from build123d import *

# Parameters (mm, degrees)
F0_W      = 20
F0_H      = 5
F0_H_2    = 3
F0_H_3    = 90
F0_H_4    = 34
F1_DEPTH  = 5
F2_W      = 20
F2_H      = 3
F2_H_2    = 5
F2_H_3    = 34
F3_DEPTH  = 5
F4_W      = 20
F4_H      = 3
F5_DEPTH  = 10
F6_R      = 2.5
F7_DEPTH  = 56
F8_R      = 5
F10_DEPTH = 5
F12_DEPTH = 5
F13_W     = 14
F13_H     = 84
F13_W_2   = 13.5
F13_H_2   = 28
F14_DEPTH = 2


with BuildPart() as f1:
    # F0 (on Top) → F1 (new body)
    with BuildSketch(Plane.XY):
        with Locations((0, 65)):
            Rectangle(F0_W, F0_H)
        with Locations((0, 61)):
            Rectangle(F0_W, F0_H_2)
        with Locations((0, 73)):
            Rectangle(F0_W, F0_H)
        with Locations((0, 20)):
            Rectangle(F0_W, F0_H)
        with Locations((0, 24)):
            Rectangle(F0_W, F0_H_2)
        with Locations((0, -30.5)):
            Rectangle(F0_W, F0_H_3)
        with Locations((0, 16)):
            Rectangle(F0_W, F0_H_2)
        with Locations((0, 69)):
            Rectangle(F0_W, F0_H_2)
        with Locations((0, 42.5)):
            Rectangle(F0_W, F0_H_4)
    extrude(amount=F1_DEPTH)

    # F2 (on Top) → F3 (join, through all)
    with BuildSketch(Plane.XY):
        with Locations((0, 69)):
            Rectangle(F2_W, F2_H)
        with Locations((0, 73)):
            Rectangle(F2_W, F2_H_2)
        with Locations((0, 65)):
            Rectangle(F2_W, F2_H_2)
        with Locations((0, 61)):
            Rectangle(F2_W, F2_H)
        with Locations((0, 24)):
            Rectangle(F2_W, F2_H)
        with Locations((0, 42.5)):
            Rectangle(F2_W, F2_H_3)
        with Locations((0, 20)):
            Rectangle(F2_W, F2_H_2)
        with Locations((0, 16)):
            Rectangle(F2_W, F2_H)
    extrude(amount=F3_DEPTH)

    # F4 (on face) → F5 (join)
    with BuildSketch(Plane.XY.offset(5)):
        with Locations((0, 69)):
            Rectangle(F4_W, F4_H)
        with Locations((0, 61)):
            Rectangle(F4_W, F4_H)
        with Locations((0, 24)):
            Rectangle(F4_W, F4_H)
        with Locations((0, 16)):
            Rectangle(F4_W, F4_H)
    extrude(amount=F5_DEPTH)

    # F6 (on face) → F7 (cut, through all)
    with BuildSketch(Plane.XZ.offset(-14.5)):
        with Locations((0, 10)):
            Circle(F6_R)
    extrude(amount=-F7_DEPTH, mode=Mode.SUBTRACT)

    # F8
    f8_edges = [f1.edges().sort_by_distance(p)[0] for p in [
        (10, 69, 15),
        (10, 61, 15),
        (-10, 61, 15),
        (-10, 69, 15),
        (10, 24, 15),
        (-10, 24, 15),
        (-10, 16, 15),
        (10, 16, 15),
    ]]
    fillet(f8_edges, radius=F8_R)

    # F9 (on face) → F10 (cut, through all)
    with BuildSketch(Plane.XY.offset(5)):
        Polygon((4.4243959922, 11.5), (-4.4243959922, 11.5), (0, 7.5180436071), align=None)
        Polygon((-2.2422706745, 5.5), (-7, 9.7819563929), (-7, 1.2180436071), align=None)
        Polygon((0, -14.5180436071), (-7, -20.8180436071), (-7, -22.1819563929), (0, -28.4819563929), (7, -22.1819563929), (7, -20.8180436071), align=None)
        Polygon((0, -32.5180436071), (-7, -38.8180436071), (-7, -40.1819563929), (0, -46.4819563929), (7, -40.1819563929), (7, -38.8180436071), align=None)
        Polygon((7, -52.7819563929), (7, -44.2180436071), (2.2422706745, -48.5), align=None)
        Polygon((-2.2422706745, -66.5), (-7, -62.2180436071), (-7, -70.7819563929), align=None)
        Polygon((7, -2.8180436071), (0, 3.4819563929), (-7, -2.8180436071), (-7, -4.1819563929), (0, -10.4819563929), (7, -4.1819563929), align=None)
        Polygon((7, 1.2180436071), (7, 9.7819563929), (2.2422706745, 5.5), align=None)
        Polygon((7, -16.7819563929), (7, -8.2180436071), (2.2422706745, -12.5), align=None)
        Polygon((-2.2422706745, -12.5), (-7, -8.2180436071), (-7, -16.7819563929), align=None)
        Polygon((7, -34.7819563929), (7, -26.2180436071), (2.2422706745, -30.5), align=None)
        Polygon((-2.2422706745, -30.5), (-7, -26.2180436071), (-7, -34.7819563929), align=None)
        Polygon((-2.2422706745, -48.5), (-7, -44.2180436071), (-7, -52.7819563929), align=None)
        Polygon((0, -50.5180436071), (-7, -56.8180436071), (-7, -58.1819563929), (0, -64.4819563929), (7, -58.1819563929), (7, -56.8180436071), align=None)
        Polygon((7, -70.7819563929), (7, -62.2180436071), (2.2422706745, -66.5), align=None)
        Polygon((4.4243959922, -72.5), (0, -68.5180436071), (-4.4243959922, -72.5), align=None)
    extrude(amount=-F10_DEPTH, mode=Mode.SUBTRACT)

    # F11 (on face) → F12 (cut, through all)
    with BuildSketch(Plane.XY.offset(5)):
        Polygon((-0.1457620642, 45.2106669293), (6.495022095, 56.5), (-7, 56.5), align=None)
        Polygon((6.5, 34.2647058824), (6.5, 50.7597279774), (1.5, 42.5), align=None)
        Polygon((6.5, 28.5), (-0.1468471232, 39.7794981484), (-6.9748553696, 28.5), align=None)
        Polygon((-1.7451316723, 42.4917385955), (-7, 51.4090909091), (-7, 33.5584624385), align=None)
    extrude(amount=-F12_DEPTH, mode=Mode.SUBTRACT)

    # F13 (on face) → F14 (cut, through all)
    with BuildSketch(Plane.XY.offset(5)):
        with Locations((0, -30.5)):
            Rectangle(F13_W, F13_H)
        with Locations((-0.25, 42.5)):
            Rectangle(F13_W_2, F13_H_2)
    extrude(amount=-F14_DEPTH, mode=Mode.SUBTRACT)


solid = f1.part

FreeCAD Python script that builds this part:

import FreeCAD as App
import Part
import Sketcher


def edges_at(feature, points):
    """Names of the edges that pass closest to the given points."""
    edges = feature.Shape.Edges
    near = lambda p: min(range(len(edges)), key=lambda i: edges[i].distToShape(Part.Vertex(*p))[0])
    return sorted({f"Edge{near(p) + 1}" for p in points})

doc = App.newDocument("Part")
body = doc.addObject("PartDesign::Body", "Body")

sketch1 = doc.addObject("Sketcher::SketchObject", "Sketch")
body.addObject(sketch1)
sketch1.AttachmentSupport = (doc.XY_Plane, [""])
sketch1.MapMode = "FlatFace"
sketch1.addGeometry(Part.LineSegment(App.Vector(10, 75.5, 0), App.Vector(-10, 75.5, 0)), False)
sketch1.addGeometry(Part.LineSegment(App.Vector(-10, 75.5, 0), App.Vector(-10, -75.5, 0)), False)
sketch1.addGeometry(Part.LineSegment(App.Vector(-10, -75.5, 0), App.Vector(10, -75.5, 0)), False)
sketch1.addGeometry(Part.LineSegment(App.Vector(10, -75.5, 0), App.Vector(10, 75.5, 0)), False)
sketch1.addConstraint(Sketcher.Constraint("Coincident", 0, 2, 1, 1))
sketch1.addConstraint(Sketcher.Constraint("Coincident", 1, 2, 2, 1))
sketch1.addConstraint(Sketcher.Constraint("Coincident", 2, 2, 3, 1))
sketch1.addConstraint(Sketcher.Constraint("Coincident", 3, 2, 0, 1))
sketch1.addConstraint(Sketcher.Constraint("Horizontal", 0))
sketch1.addConstraint(Sketcher.Constraint("Vertical", 1))
sketch1.addConstraint(Sketcher.Constraint("Horizontal", 2))
sketch1.addConstraint(Sketcher.Constraint("Vertical", 3))
sketch1.addConstraint(Sketcher.Constraint("Symmetric", 0, 2, 2, 2, -1, 1))
sketch1.addConstraint(Sketcher.Constraint("DistanceX", 0, 2, 0, 1, 20.0))
sketch1.addConstraint(Sketcher.Constraint("DistanceY", 1, 2, 1, 1, 151.0))
pad1 = doc.addObject("PartDesign::Pad", "Pad")
body.addObject(pad1)
pad1.Profile = sketch1
pad1.Length = 5

sketch2 = doc.addObject("Sketcher::SketchObject", "Sketch001")
body.addObject(sketch2)
sketch2.AttachmentSupport = (doc.XY_Plane, [""])
sketch2.MapMode = "FlatFace"
sketch2.addGeometry(Part.LineSegment(App.Vector(10, 75.5, 0), App.Vector(-10, 75.5, 0)), False)
sketch2.addGeometry(Part.LineSegment(App.Vector(-10, 75.5, 0), App.Vector(-10, 14.5, 0)), False)
sketch2.addGeometry(Part.LineSegment(App.Vector(-10, 14.5, 0), App.Vector(10, 14.5, 0)), False)
sketch2.addGeometry(Part.LineSegment(App.Vector(10, 14.5, 0), App.Vector(10, 75.5, 0)), False)
sketch2.addConstraint(Sketcher.Constraint("Coincident", 0, 2, 1, 1))
sketch2.addConstraint(Sketcher.Constraint("Coincident", 1, 2, 2, 1))
sketch2.addConstraint(Sketcher.Constraint("Coincident", 2, 2, 3, 1))
sketch2.addConstraint(Sketcher.Constraint("Coincident", 3, 2, 0, 1))
sketch2.addConstraint(Sketcher.Constraint("Horizontal", 0))
sketch2.addConstraint(Sketcher.Constraint("Vertical", 1))
sketch2.addConstraint(Sketcher.Constraint("Horizontal", 2))
sketch2.addConstraint(Sketcher.Constraint("Vertical", 3))
sketch2.addConstraint(Sketcher.Constraint("DistanceX", 0, 2, 0, 1, 20.0))
sketch2.addConstraint(Sketcher.Constraint("DistanceY", 1, 2, 1, 1, 61.0))
sketch2.addConstraint(Sketcher.Constraint("DistanceX", 0, 2, -1, 1, 10.0))
sketch2.addConstraint(Sketcher.Constraint("DistanceY", -1, 1, 0, 2, 75.5))
pad2 = doc.addObject("PartDesign::Pad", "Pad001")
body.addObject(pad2)
pad2.Profile = sketch2
pad2.Type = "UpToLast"

sketch3 = doc.addObject("Sketcher::SketchObject", "Sketch002")
body.addObject(sketch3)
sketch3.AttachmentSupport = (doc.XY_Plane, [""])
sketch3.MapMode = "FlatFace"
sketch3.AttachmentOffset = App.Placement(App.Vector(0, 0, 5), App.Rotation())
sketch3.addGeometry(Part.LineSegment(App.Vector(-10, 70.5, 0), App.Vector(-10, 67.5, 0)), False)
sketch3.addGeometry(Part.LineSegment(App.Vector(-10, 67.5, 0), App.Vector(10, 67.5, 0)), False)
sketch3.addGeometry(Part.LineSegment(App.Vector(10, 67.5, 0), App.Vector(10, 70.5, 0)), False)
sketch3.addGeometry(Part.LineSegment(App.Vector(10, 70.5, 0), App.Vector(-10, 70.5, 0)), False)
sketch3.addGeometry(Part.LineSegment(App.Vector(-10, 62.5, 0), App.Vector(-10, 59.5, 0)), False)
sketch3.addGeometry(Part.LineSegment(App.Vector(-10, 59.5, 0), App.Vector(10, 59.5, 0)), False)
sketch3.addGeometry(Part.LineSegment(App.Vector(10, 59.5, 0), App.Vector(10, 62.5, 0)), False)
sketch3.addGeometry(Part.LineSegment(App.Vector(10, 62.5, 0), App.Vector(-10, 62.5, 0)), False)
sketch3.addGeometry(Part.LineSegment(App.Vector(-10, 25.5, 0), App.Vector(-10, 22.5, 0)), False)
sketch3.addGeometry(Part.LineSegment(App.Vector(-10, 22.5, 0), App.Vector(10, 22.5, 0)), False)
sketch3.addGeometry(Part.LineSegment(App.Vector(10, 22.5, 0), App.Vector(10, 25.5, 0)), False)
sketch3.addGeometry(Part.LineSegment(App.Vector(10, 25.5, 0), App.Vector(-10, 25.5, 0)), False)
sketch3.addGeometry(Part.LineSegment(App.Vector(-10, 17.5, 0), App.Vector(-10, 14.5, 0)), False)
sketch3.addGeometry(Part.LineSegment(App.Vector(-10, 14.5, 0), App.Vector(10, 14.5, 0)), False)
sketch3.addGeometry(Part.LineSegment(App.Vector(10, 14.5, 0), App.Vector(10, 17.5, 0)), False)
sketch3.addGeometry(Part.LineSegment(App.Vector(10, 17.5, 0), App.Vector(-10, 17.5, 0)), False)
sketch3.addConstraint(Sketcher.Constraint("Coincident", 0, 2, 1, 1))
sketch3.addConstraint(Sketcher.Constraint("Coincident", 1, 2, 2, 1))
sketch3.addConstraint(Sketcher.Constraint("Coincident", 2, 2, 3, 1))
sketch3.addConstraint(Sketcher.Constraint("Coincident", 3, 2, 0, 1))
sketch3.addConstraint(Sketcher.Constraint("Coincident", 4, 2, 5, 1))
sketch3.addConstraint(Sketcher.Constraint("Coincident", 5, 2, 6, 1))
sketch3.addConstraint(Sketcher.Constraint("Coincident", 6, 2, 7, 1))
sketch3.addConstraint(Sketcher.Constraint("Coincident", 7, 2, 4, 1))
sketch3.addConstraint(Sketcher.Constraint("Coincident", 8, 2, 9, 1))
sketch3.addConstraint(Sketcher.Constraint("Coincident", 9, 2, 10, 1))
sketch3.addConstraint(Sketcher.Constraint("Coincident", 10, 2, 11, 1))
sketch3.addConstraint(Sketcher.Constraint("Coincident", 11, 2, 8, 1))
sketch3.addConstraint(Sketcher.Constraint("Coincident", 12, 2, 13, 1))
sketch3.addConstraint(Sketcher.Constraint("Coincident", 13, 2, 14, 1))
sketch3.addConstraint(Sketcher.Constraint("Coincident", 14, 2, 15, 1))
sketch3.addConstraint(Sketcher.Constraint("Coincident", 15, 2, 12, 1))
sketch3.addConstraint(Sketcher.Constraint("Vertical", 0))
sketch3.addConstraint(Sketcher.Constraint("Horizontal", 1))
sketch3.addConstraint(Sketcher.Constraint("Vertical", 2))
sketch3.addConstraint(Sketcher.Constraint("Horizontal", 3))
sketch3.addConstraint(Sketcher.Constraint("Vertical", 4))
sketch3.addConstraint(Sketcher.Constraint("Horizontal", 5))
sketch3.addConstraint(Sketcher.Constraint("Vertical", 6))
sketch3.addConstraint(Sketcher.Constraint("Horizontal", 7))
sketch3.addConstraint(Sketcher.Constraint("Vertical", 8))
sketch3.addConstraint(Sketcher.Constraint("Horizontal", 9))
sketch3.addConstraint(Sketcher.Constraint("Vertical", 10))
sketch3.addConstraint(Sketcher.Constraint("Horizontal", 11))
sketch3.addConstraint(Sketcher.Constraint("Vertical", 12))
sketch3.addConstraint(Sketcher.Constraint("Horizontal", 13))
sketch3.addConstraint(Sketcher.Constraint("Vertical", 14))
sketch3.addConstraint(Sketcher.Constraint("Horizontal", 15))
sketch3.addConstraint(Sketcher.Constraint("Vertical", 3, 2, 4, 2))
sketch3.addConstraint(Sketcher.Constraint("Vertical", 2, 2, 5, 2))
sketch3.addConstraint(Sketcher.Constraint("Vertical", 7, 2, 8, 2))
sketch3.addConstraint(Sketcher.Constraint("Vertical", 6, 2, 9, 2))
sketch3.addConstraint(Sketcher.Constraint("Vertical", 11, 2, 12, 2))
sketch3.addConstraint(Sketcher.Constraint("Vertical", 10, 2, 13, 2))
sketch3.addConstraint(Sketcher.Constraint("Equal", 2, 4))
sketch3.addConstraint(Sketcher.Constraint("Equal", 6, 8))
sketch3.addConstraint(Sketcher.Constraint("Equal", 10, 12))
sketch3.addConstraint(Sketcher.Constraint("DistanceX", 1, 1, 1, 2, 20.0))
sketch3.addConstraint(Sketcher.Constraint("DistanceY", 0, 2, 0, 1, 3.0))
sketch3.addConstraint(Sketcher.Constraint("DistanceX", 0, 2, -1, 1, 10.0))
sketch3.addConstraint(Sketcher.Constraint("DistanceY", 4, 2, 0, 2, 8.0))
sketch3.addConstraint(Sketcher.Constraint("DistanceY", 8, 2, 4, 2, 37.0))
sketch3.addConstraint(Sketcher.Constraint("DistanceY", 12, 2, 8, 2, 8.0))
sketch3.addConstraint(Sketcher.Constraint("DistanceY", -1, 1, 0, 2, 67.5))
pad3 = doc.addObject("PartDesign::Pad", "Pad002")
body.addObject(pad3)
pad3.Profile = sketch3
pad3.Length = 10

sketch4 = doc.addObject("Sketcher::SketchObject", "Sketch003")
body.addObject(sketch4)
sketch4.AttachmentSupport = (doc.XZ_Plane, [""])
sketch4.MapMode = "FlatFace"
sketch4.AttachmentOffset = App.Placement(App.Vector(0, 0, -14.5), App.Rotation())
sketch4.addGeometry(Part.Circle(App.Vector(0, 10, 0), App.Vector(0, 0, 1), 2.5), False)
sketch4.addConstraint(Sketcher.Constraint("PointOnObject", 0, 3, -2))
sketch4.addConstraint(Sketcher.Constraint("Diameter", 0, 5.0))
sketch4.addConstraint(Sketcher.Constraint("DistanceY", -1, 1, 0, 3, 10.0))
pocket1 = doc.addObject("PartDesign::Pocket", "Pocket")
body.addObject(pocket1)
pocket1.Profile = sketch4
pocket1.Type = "ThroughAll"
doc.recompute()

fillet = doc.addObject("PartDesign::Fillet", "Fillet")
body.addObject(fillet)
fillet.Base = (pocket1, edges_at(pocket1, [
    (10, 69, 15),
    (10, 61, 15),
    (-10, 61, 15),
    (-10, 69, 15),
    (10, 24, 15),
    (-10, 24, 15),
    (-10, 16, 15),
    (10, 16, 15),
]))
fillet.Radius = 5

sketch5 = doc.addObject("Sketcher::SketchObject", "Sketch004")
body.addObject(sketch5)
sketch5.AttachmentSupport = (doc.XY_Plane, [""])
sketch5.MapMode = "FlatFace"
sketch5.AttachmentOffset = App.Placement(App.Vector(0, 0, 5), App.Rotation())
sketch5.addGeometry(Part.LineSegment(App.Vector(4.424396, 11.5, 0), App.Vector(-4.424396, 11.5, 0)), False)
sketch5.addGeometry(Part.LineSegment(App.Vector(-4.424396, 11.5, 0), App.Vector(0, 7.518044, 0)), False)
sketch5.addGeometry(Part.LineSegment(App.Vector(0, 7.518044, 0), App.Vector(4.424396, 11.5, 0)), False)
sketch5.addGeometry(Part.LineSegment(App.Vector(-2.242271, 5.5, 0), App.Vector(-7, 9.781956, 0)), False)
sketch5.addGeometry(Part.LineSegment(App.Vector(-7, 9.781956, 0), App.Vector(-7, 1.218044, 0)), False)
sketch5.addGeometry(Part.LineSegment(App.Vector(-7, 1.218044, 0), App.Vector(-2.242271, 5.5, 0)), False)
sketch5.addGeometry(Part.LineSegment(App.Vector(0, -14.518044, 0), App.Vector(-7, -20.818044, 0)), False)
sketch5.addGeometry(Part.LineSegment(App.Vector(-7, -20.818044, 0), App.Vector(-7, -22.181956, 0)), False)
sketch5.addGeometry(Part.LineSegment(App.Vector(-7, -22.181956, 0), App.Vector(0, -28.481956, 0)), False)
sketch5.addGeometry(Part.LineSegment(App.Vector(0, -28.481956, 0), App.Vector(7, -22.181956, 0)), False)
sketch5.addGeometry(Part.LineSegment(App.Vector(7, -22.181956, 0), App.Vector(7, -20.818044, 0)), False)
sketch5.addGeometry(Part.LineSegment(App.Vector(7, -20.818044, 0), App.Vector(0, -14.518044, 0)), False)
sketch5.addGeometry(Part.LineSegment(App.Vector(0, -32.518044, 0), App.Vector(-7, -38.818044, 0)), False)
sketch5.addGeometry(Part.LineSegment(App.Vector(-7, -38.818044, 0), App.Vector(-7, -40.181956, 0)), False)
sketch5.addGeometry(Part.LineSegment(App.Vector(-7, -40.181956, 0), App.Vector(0, -46.481956, 0)), False)
sketch5.addGeometry(Part.LineSegment(App.Vector(0, -46.481956, 0), App.Vector(7, -40.181956, 0)), False)
sketch5.addGeometry(Part.LineSegment(App.Vector(7, -40.181956, 0), App.Vector(7, -38.818044, 0)), False)
sketch5.addGeometry(Part.LineSegment(App.Vector(7, -38.818044, 0), App.Vector(0, -32.518044, 0)), False)
sketch5.addGeometry(Part.LineSegment(App.Vector(7, -52.781956, 0), App.Vector(7, -44.218044, 0)), False)
sketch5.addGeometry(Part.LineSegment(App.Vector(7, -44.218044, 0), App.Vector(2.242271, -48.5, 0)), False)
sketch5.addGeometry(Part.LineSegment(App.Vector(2.242271, -48.5, 0), App.Vector(7, -52.781956, 0)), False)
sketch5.addGeometry(Part.LineSegment(App.Vector(-2.242271, -66.5, 0), App.Vector(-7, -62.218044, 0)), False)
sketch5.addGeometry(Part.LineSegment(App.Vector(-7, -62.218044, 0), App.Vector(-7, -70.781956, 0)), False)
sketch5.addGeometry(Part.LineSegment(App.Vector(-7, -70.781956, 0), App.Vector(-2.242271, -66.5, 0)), False)
sketch5.addGeometry(Part.LineSegment(App.Vector(7, -2.818044, 0), App.Vector(0, 3.481956, 0)), False)
sketch5.addGeometry(Part.LineSegment(App.Vector(0, 3.481956, 0), App.Vector(-7, -2.818044, 0)), False)
sketch5.addGeometry(Part.LineSegment(App.Vector(-7, -2.818044, 0), App.Vector(-7, -4.181956, 0)), False)
sketch5.addGeometry(Part.LineSegment(App.Vector(-7, -4.181956, 0), App.Vector(0, -10.481956, 0)), False)
sketch5.addGeometry(Part.LineSegment(App.Vector(0, -10.481956, 0), App.Vector(7, -4.181956, 0)), False)
sketch5.addGeometry(Part.LineSegment(App.Vector(7, -4.181956, 0), App.Vector(7, -2.818044, 0)), False)
sketch5.addGeometry(Part.LineSegment(App.Vector(7, 1.218044, 0), App.Vector(7, 9.781956, 0)), False)
sketch5.addGeometry(Part.LineSegment(App.Vector(7, 9.781956, 0), App.Vector(2.242271, 5.5, 0)), False)
sketch5.addGeometry(Part.LineSegment(App.Vector(2.242271, 5.5, 0), App.Vector(7, 1.218044, 0)), False)
sketch5.addGeometry(Part.LineSegment(App.Vector(7, -16.781956, 0), App.Vector(7, -8.218044, 0)), False)
sketch5.addGeometry(Part.LineSegment(App.Vector(7, -8.218044, 0), App.Vector(2.242271, -12.5, 0)), False)
sketch5.addGeometry(Part.LineSegment(App.Vector(2.242271, -12.5, 0), App.Vector(7, -16.781956, 0)), False)
sketch5.addGeometry(Part.LineSegment(App.Vector(-2.242271, -12.5, 0), App.Vector(-7, -8.218044, 0)), False)
sketch5.addGeometry(Part.LineSegment(App.Vector(-7, -8.218044, 0), App.Vector(-7, -16.781956, 0)), False)
sketch5.addGeometry(Part.LineSegment(App.Vector(-7, -16.781956, 0), App.Vector(-2.242271, -12.5, 0)), False)
sketch5.addGeometry(Part.LineSegment(App.Vector(7, -34.781956, 0), App.Vector(7, -26.218044, 0)), False)
sketch5.addGeometry(Part.LineSegment(App.Vector(7, -26.218044, 0), App.Vector(2.242271, -30.5, 0)), False)
sketch5.addGeometry(Part.LineSegment(App.Vector(2.242271, -30.5, 0), App.Vector(7, -34.781956, 0)), False)
sketch5.addGeometry(Part.LineSegment(App.Vector(-2.242271, -30.5, 0), App.Vector(-7, -26.218044, 0)), False)
sketch5.addGeometry(Part.LineSegment(App.Vector(-7, -26.218044, 0), App.Vector(-7, -34.781956, 0)), False)
sketch5.addGeometry(Part.LineSegment(App.Vector(-7, -34.781956, 0), App.Vector(-2.242271, -30.5, 0)), False)
sketch5.addGeometry(Part.LineSegment(App.Vector(-2.242271, -48.5, 0), App.Vector(-7, -44.218044, 0)), False)
sketch5.addGeometry(Part.LineSegment(App.Vector(-7, -44.218044, 0), App.Vector(-7, -52.781956, 0)), False)
sketch5.addGeometry(Part.LineSegment(App.Vector(-7, -52.781956, 0), App.Vector(-2.242271, -48.5, 0)), False)
sketch5.addGeometry(Part.LineSegment(App.Vector(0, -50.518044, 0), App.Vector(-7, -56.818044, 0)), False)
sketch5.addGeometry(Part.LineSegment(App.Vector(-7, -56.818044, 0), App.Vector(-7, -58.181956, 0)), False)
sketch5.addGeometry(Part.LineSegment(App.Vector(-7, -58.181956, 0), App.Vector(0, -64.481956, 0)), False)
sketch5.addGeometry(Part.LineSegment(App.Vector(0, -64.481956, 0), App.Vector(7, -58.181956, 0)), False)
sketch5.addGeometry(Part.LineSegment(App.Vector(7, -58.181956, 0), App.Vector(7, -56.818044, 0)), False)
sketch5.addGeometry(Part.LineSegment(App.Vector(7, -56.818044, 0), App.Vector(0, -50.518044, 0)), False)
sketch5.addGeometry(Part.LineSegment(App.Vector(7, -70.781956, 0), App.Vector(7, -62.218044, 0)), False)
sketch5.addGeometry(Part.LineSegment(App.Vector(7, -62.218044, 0), App.Vector(2.242271, -66.5, 0)), False)
sketch5.addGeometry(Part.LineSegment(App.Vector(2.242271, -66.5, 0), App.Vector(7, -70.781956, 0)), False)
sketch5.addGeometry(Part.LineSegment(App.Vector(4.424396, -72.5, 0), App.Vector(0, -68.518044, 0)), False)
sketch5.addGeometry(Part.LineSegment(App.Vector(0, -68.518044, 0), App.Vector(-4.424396, -72.5, 0)), False)
sketch5.addGeometry(Part.LineSegment(App.Vector(-4.424396, -72.5, 0), App.Vector(4.424396, -72.5, 0)), False)
sketch5.addConstraint(Sketcher.Constraint("Coincident", 0, 2, 1, 1))
sketch5.addConstraint(Sketcher.Constraint("Coincident", 1, 2, 2, 1))
sketch5.addConstraint(Sketcher.Constraint("Coincident", 2, 2, 0, 1))
sketch5.addConstraint(Sketcher.Constraint("Coincident", 3, 2, 4, 1))
sketch5.addConstraint(Sketcher.Constraint("Coincident", 4, 2, 5, 1))
sketch5.addConstraint(Sketcher.Constraint("Coincident", 5, 2, 3, 1))
sketch5.addConstraint(Sketcher.Constraint("Coincident", 6, 2, 7, 1))
sketch5.addConstraint(Sketcher.Constraint("Coincident", 7, 2, 8, 1))
sketch5.addConstraint(Sketcher.Constraint("Coincident", 8, 2, 9, 1))
sketch5.addConstraint(Sketcher.Constraint("Coincident", 9, 2, 10, 1))
sketch5.addConstraint(Sketcher.Constraint("Coincident", 10, 2, 11, 1))
sketch5.addConstraint(Sketcher.Constraint("Coincident", 11, 2, 6, 1))
sketch5.addConstraint(Sketcher.Constraint("Coincident", 12, 2, 13, 1))
sketch5.addConstraint(Sketcher.Constraint("Coincident", 13, 2, 14, 1))
sketch5.addConstraint(Sketcher.Constraint("Coincident", 14, 2, 15, 1))
sketch5.addConstraint(Sketcher.Constraint("Coincident", 15, 2, 16, 1))
sketch5.addConstraint(Sketcher.Constraint("Coincident", 16, 2, 17, 1))
sketch5.addConstraint(Sketcher.Constraint("Coincident", 17, 2, 12, 1))
sketch5.addConstraint(Sketcher.Constraint("Coincident", 18, 2, 19, 1))
sketch5.addConstraint(Sketcher.Constraint("Coincident", 19, 2, 20, 1))
sketch5.addConstraint(Sketcher.Constraint("Coincident", 20, 2, 18, 1))
sketch5.addConstraint(Sketcher.Constraint("Coincident", 21, 2, 22, 1))
sketch5.addConstraint(Sketcher.Constraint("Coincident", 22, 2, 23, 1))
sketch5.addConstraint(Sketcher.Constraint("Coincident", 23, 2, 21, 1))
sketch5.addConstraint(Sketcher.Constraint("Coincident", 24, 2, 25, 1))
sketch5.addConstraint(Sketcher.Constraint("Coincident", 25, 2, 26, 1))
sketch5.addConstraint(Sketcher.Constraint("Coincident", 26, 2, 27, 1))
sketch5.addConstraint(Sketcher.Constraint("Coincident", 27, 2, 28, 1))
sketch5.addConstraint(Sketcher.Constraint("Coincident", 28, 2, 29, 1))
sketch5.addConstraint(Sketcher.Constraint("Coincident", 29, 2, 24, 1))
sketch5.addConstraint(Sketcher.Constraint("Coincident", 30, 2, 31, 1))
sketch5.addConstraint(Sketcher.Constraint("Coincident", 31, 2, 32, 1))
sketch5.addConstraint(Sketcher.Constraint("Coincident", 32, 2, 30, 1))
sketch5.addConstraint(Sketcher.Constraint("Coincident", 33, 2, 34, 1))
sketch5.addConstraint(Sketcher.Constraint("Coincident", 34, 2, 35, 1))
sketch5.addConstraint(Sketcher.Constraint("Coincident", 35, 2, 33, 1))
sketch5.addConstraint(Sketcher.Constraint("Coincident", 36, 2, 37, 1))
sketch5.addConstraint(Sketcher.Constraint("Coincident", 37, 2, 38, 1))
sketch5.addConstraint(Sketcher.Constraint("Coincident", 38, 2, 36, 1))
sketch5.addConstraint(Sketcher.Constraint("Coincident", 39, 2, 40, 1))
sketch5.addConstraint(Sketcher.Constraint("Coincident", 40, 2, 41, 1))
sketch5.addConstraint(Sketcher.Constraint("Coincident", 41, 2, 39, 1))
sketch5.addConstraint(Sketcher.Constraint("Coincident", 42, 2, 43, 1))
sketch5.addConstraint(Sketcher.Constraint("Coincident", 43, 2, 44, 1))
sketch5.addConstraint(Sketcher.Constraint("Coincident", 44, 2, 42, 1))
sketch5.addConstraint(Sketcher.Constraint("Coincident", 45, 2, 46, 1))
sketch5.addConstraint(Sketcher.Constraint("Coincident", 46, 2, 47, 1))
sketch5.addConstraint(Sketcher.Constraint("Coincident", 47, 2, 45, 1))
sketch5.addConstraint(Sketcher.Constraint("Coincident", 48, 2, 49, 1))
sketch5.addConstraint(Sketcher.Constraint("Coincident", 49, 2, 50, 1))
sketch5.addConstraint(Sketcher.Constraint("Coincident", 50, 2, 51, 1))
sketch5.addConstraint(Sketcher.Constraint("Coincident", 51, 2, 52, 1))
sketch5.addConstraint(Sketcher.Constraint("Coincident", 52, 2, 53, 1))
sketch5.addConstraint(Sketcher.Constraint("Coincident", 53, 2, 48, 1))
sketch5.addConstraint(Sketcher.Constraint("Coincident", 54, 2, 55, 1))
sketch5.addConstraint(Sketcher.Constraint("Coincident", 55, 2, 56, 1))
sketch5.addConstraint(Sketcher.Constraint("Coincident", 56, 2, 54, 1))
sketch5.addConstraint(Sketcher.Constraint("Coincident", 57, 2, 58, 1))
sketch5.addConstraint(Sketcher.Constraint("Coincident", 58, 2, 59, 1))
sketch5.addConstraint(Sketcher.Constraint("Coincident", 59, 2, 57, 1))
sketch5.addConstraint(Sketcher.Constraint("Horizontal", 0))
sketch5.addConstraint(Sketcher.Constraint("Vertical", 4))
sketch5.addConstraint(Sketcher.Constraint("Vertical", 7))
sketch5.addConstraint(Sketcher.Constraint("Vertical", 10))
sketch5.addConstraint(Sketcher.Constraint("Vertical", 13))
sketch5.addConstraint(Sketcher.Constraint("Vertical", 16))
sketch5.addConstraint(Sketcher.Constraint("Vertical", 18))
sketch5.addConstraint(Sketcher.Constraint("Vertical", 22))
sketch5.addConstraint(Sketcher.Constraint("Vertical", 26))
sketch5.addConstraint(Sketcher.Constraint("Vertical", 29))
sketch5.addConstraint(Sketcher.Constraint("Vertical", 30))
sketch5.addConstraint(Sketcher.Constraint("Vertical", 33))
sketch5.addConstraint(Sketcher.Constraint("Vertical", 37))
sketch5.addConstraint(Sketcher.Constraint("Vertical", 39))
sketch5.addConstraint(Sketcher.Constraint("Vertical", 43))
sketch5.addConstraint(Sketcher.Constraint("Vertical", 46))
sketch5.addConstraint(Sketcher.Constraint("Vertical", 49))
sketch5.addConstraint(Sketcher.Constraint("Vertical", 52))
sketch5.addConstraint(Sketcher.Constraint("Vertical", 54))
sketch5.addConstraint(Sketcher.Constraint("Horizontal", 59))
sketch5.addConstraint(Sketcher.Constraint("Symmetric", 7, 2, 9, 2, -2))
sketch5.addConstraint(Sketcher.Constraint("Symmetric", 13, 2, 15, 2, -2))
sketch5.addConstraint(Sketcher.Constraint("Symmetric", 26, 2, 28, 2, -2))
sketch5.addConstraint(Sketcher.Constraint("Symmetric", 3, 2, 30, 2, -2))
sketch5.addConstraint(Sketcher.Constraint("Symmetric", 5, 2, 31, 2, -2))
sketch5.addConstraint(Sketcher.Constraint("Symmetric", 33, 2, 36, 2, -2))
sketch5.addConstraint(Sketcher.Constraint("Symmetric", 34, 2, 38, 2, -2))
sketch5.addConstraint(Sketcher.Constraint("Symmetric", 39, 2, 42, 2, -2))
sketch5.addConstraint(Sketcher.Constraint("Symmetric", 40, 2, 44, 2, -2))
sketch5.addConstraint(Sketcher.Constraint("Symmetric", 18, 2, 45, 2, -2))
sketch5.addConstraint(Sketcher.Constraint("Symmetric", 19, 2, 47, 2, -2))
sketch5.addConstraint(Sketcher.Constraint("Symmetric", 49, 2, 51, 2, -2))
sketch5.addConstraint(Sketcher.Constraint("Symmetric", 21, 2, 54, 2, -2))
sketch5.addConstraint(Sketcher.Constraint("Symmetric", 23, 2, 55, 2, -2))
sketch5.addConstraint(Sketcher.Constraint("PointOnObject", 1, 2, -2))
sketch5.addConstraint(Sketcher.Constraint("PointOnObject", 8, 2, -2))
sketch5.addConstraint(Sketcher.Constraint("PointOnObject", 11, 2, -2))
sketch5.addConstraint(Sketcher.Constraint("PointOnObject", 14, 2, -2))
sketch5.addConstraint(Sketcher.Constraint("PointOnObject", 17, 2, -2))
sketch5.addConstraint(Sketcher.Constraint("PointOnObject", 24, 2, -2))
sketch5.addConstraint(Sketcher.Constraint("PointOnObject", 27, 2, -2))
sketch5.addConstraint(Sketcher.Constraint("PointOnObject", 50, 2, -2))
sketch5.addConstraint(Sketcher.Constraint("PointOnObject", 53, 2, -2))
sketch5.addConstraint(Sketcher.Constraint("PointOnObject", 57, 2, -2))
sketch5.addConstraint(Sketcher.Constraint("Parallel", 1, 3))
sketch5.addConstraint(Sketcher.Constraint("Parallel", 2, 5))
sketch5.addConstraint(Sketcher.Constraint("Parallel", 5, 6))
sketch5.addConstraint(Sketcher.Constraint("Parallel", 3, 8))
sketch5.addConstraint(Sketcher.Constraint("Parallel", 6, 9))
sketch5.addConstraint(Sketcher.Constraint("Parallel", 8, 11))
sketch5.addConstraint(Sketcher.Constraint("Parallel", 9, 12))
sketch5.addConstraint(Sketcher.Constraint("Parallel", 11, 14))
sketch5.addConstraint(Sketcher.Constraint("Parallel", 14, 17))
sketch5.addConstraint(Sketcher.Constraint("Parallel", 15, 19))
sketch5.addConstraint(Sketcher.Constraint("Parallel", 17, 20))
sketch5.addConstraint(Sketcher.Constraint("Parallel", 20, 21))
sketch5.addConstraint(Sketcher.Constraint("Parallel", 19, 23))
sketch5.addConstraint(Sketcher.Constraint("Parallel", 21, 24))
sketch5.addConstraint(Sketcher.Constraint("Parallel", 23, 25))
sketch5.addConstraint(Sketcher.Constraint("Parallel", 24, 27))
sketch5.addConstraint(Sketcher.Constraint("Parallel", 27, 32))
sketch5.addConstraint(Sketcher.Constraint("Parallel", 31, 34))
sketch5.addConstraint(Sketcher.Constraint("Parallel", 32, 35))
sketch5.addConstraint(Sketcher.Constraint("Parallel", 34, 38))
sketch5.addConstraint(Sketcher.Constraint("Parallel", 38, 40))
sketch5.addConstraint(Sketcher.Constraint("Parallel", 36, 41))
sketch5.addConstraint(Sketcher.Constraint("Parallel", 40, 44))
sketch5.addConstraint(Sketcher.Constraint("Parallel", 44, 47))
sketch5.addConstraint(Sketcher.Constraint("Parallel", 47, 48))
sketch5.addConstraint(Sketcher.Constraint("Parallel", 45, 50))
sketch5.addConstraint(Sketcher.Constraint("Parallel", 50, 53))
sketch5.addConstraint(Sketcher.Constraint("Parallel", 53, 56))
sketch5.addConstraint(Sketcher.Constraint("Parallel", 56, 57))
sketch5.addConstraint(Sketcher.Constraint("Parallel", 55, 58))
sketch5.addConstraint(Sketcher.Constraint("Vertical", 4, 2, 6, 2))
sketch5.addConstraint(Sketcher.Constraint("Vertical", 7, 2, 12, 2))
sketch5.addConstraint(Sketcher.Constraint("Vertical", 16, 2, 18, 2))
sketch5.addConstraint(Sketcher.Constraint("Vertical", 13, 2, 21, 2))
sketch5.addConstraint(Sketcher.Constraint("Vertical", 5, 2, 23, 2))
sketch5.addConstraint(Sketcher.Constraint("Vertical", 22, 2, 25, 2))
sketch5.addConstraint(Sketcher.Constraint("Vertical", 19, 2, 31, 2))
sketch5.addConstraint(Sketcher.Constraint("Vertical", 32, 2, 33, 2))
sketch5.addConstraint(Sketcher.Constraint("Vertical", 31, 2, 34, 2))
sketch5.addConstraint(Sketcher.Constraint("Vertical", 35, 2, 39, 2))
sketch5.addConstraint(Sketcher.Constraint("Vertical", 34, 2, 40, 2))
sketch5.addConstraint(Sketcher.Constraint("Vertical", 46, 2, 48, 2))
sketch5.addConstraint(Sketcher.Constraint("Vertical", 0, 2, 58, 2))
sketch5.addConstraint(Sketcher.Constraint("Equal", 10, 13))
sketch5.addConstraint(Sketcher.Constraint("Equal", 16, 26))
sketch5.addConstraint(Sketcher.Constraint("Equal", 29, 49))
sketch5.addConstraint(Sketcher.Constraint("DistanceX", 3, 2, -1, 1, 7.0))
sketch5.addConstraint(Sketcher.Constraint("DistanceY", 5, 2, 0, 2, 6.0))
sketch5.addConstraint(Sketcher.Constraint("DistanceY", 8, 2, 1, 2, 36.0))
sketch5.addConstraint(Sketcher.Constraint("DistanceY", 12, 2, 6, 2, 18.0))
sketch5.addConstraint(Sketcher.Constraint("DistanceY", 21, 2, 18, 2, 18.0))
sketch5.addConstraint(Sketcher.Constraint("DistanceY", 58, 2, 23, 2, 6.0))
sketch5.addConstraint(Sketcher.Constraint("DistanceY", -1, 1, 0, 2, 11.5))
sketch5.addConstraint(Sketcher.Constraint("DistanceY", 19, 2, -1, 1, 48.5))
sketch5.addConstraint(Sketcher.Constraint("DistanceY", 34, 2, -1, 1, 12.5))
sketch5.addConstraint(Sketcher.Constraint("DistanceY", 40, 2, -1, 1, 30.5))
sketch5.addConstraint(Sketcher.Constraint("DistanceY", 4, 2, 1, 2, 6.3))
sketch5.addConstraint(Sketcher.Constraint("DistanceY", 6, 2, 3, 2, 30.6))
sketch5.addConstraint(Sketcher.Constraint("DistanceY", 7, 2, 4, 2, 23.4))
sketch5.addConstraint(Sketcher.Constraint("DistanceY", 25, 2, 3, 2, 12.6))
sketch5.addConstraint(Sketcher.Constraint("DistanceY", 21, 2, 48, 2, 5.4))
sketch5.addConstraint(Sketcher.Constraint("DistanceX", 0, 2, 0, 1, 8.848792))
pocket2 = doc.addObject("PartDesign::Pocket", "Pocket001")
body.addObject(pocket2)
pocket2.Profile = sketch5
pocket2.Type = "ThroughAll"

sketch6 = doc.addObject("Sketcher::SketchObject", "Sketch005")
body.addObject(sketch6)
sketch6.AttachmentSupport = (doc.XY_Plane, [""])
sketch6.MapMode = "FlatFace"
sketch6.AttachmentOffset = App.Placement(App.Vector(0, 0, 5), App.Rotation())
sketch6.addGeometry(Part.LineSegment(App.Vector(-0.145762, 45.210667, 0), App.Vector(6.495022, 56.5, 0)), False)
sketch6.addGeometry(Part.LineSegment(App.Vector(6.495022, 56.5, 0), App.Vector(-7, 56.5, 0)), False)
sketch6.addGeometry(Part.LineSegment(App.Vector(-7, 56.5, 0), App.Vector(-0.145762, 45.210667, 0)), False)
sketch6.addGeometry(Part.LineSegment(App.Vector(6.5, 34.264706, 0), App.Vector(6.5, 50.759728, 0)), False)
sketch6.addGeometry(Part.LineSegment(App.Vector(6.5, 50.759728, 0), App.Vector(1.5, 42.5, 0)), False)
sketch6.addGeometry(Part.LineSegment(App.Vector(1.5, 42.5, 0), App.Vector(6.5, 34.264706, 0)), False)
sketch6.addGeometry(Part.LineSegment(App.Vector(6.5, 28.5, 0), App.Vector(-0.146847, 39.779498, 0)), False)
sketch6.addGeometry(Part.LineSegment(App.Vector(-0.146847, 39.779498, 0), App.Vector(-6.974855, 28.5, 0)), False)
sketch6.addGeometry(Part.LineSegment(App.Vector(-6.974855, 28.5, 0), App.Vector(6.5, 28.5, 0)), False)
sketch6.addGeometry(Part.LineSegment(App.Vector(-1.745132, 42.491739, 0), App.Vector(-7, 51.409091, 0)), False)
sketch6.addGeometry(Part.LineSegment(App.Vector(-7, 51.409091, 0), App.Vector(-7, 33.558462, 0)), False)
sketch6.addGeometry(Part.LineSegment(App.Vector(-7, 33.558462, 0), App.Vector(-1.745132, 42.491739, 0)), False)
sketch6.addConstraint(Sketcher.Constraint("Coincident", 0, 2, 1, 1))
sketch6.addConstraint(Sketcher.Constraint("Coincident", 1, 2, 2, 1))
sketch6.addConstraint(Sketcher.Constraint("Coincident", 2, 2, 0, 1))
sketch6.addConstraint(Sketcher.Constraint("Coincident", 3, 2, 4, 1))
sketch6.addConstraint(Sketcher.Constraint("Coincident", 4, 2, 5, 1))
sketch6.addConstraint(Sketcher.Constraint("Coincident", 5, 2, 3, 1))
sketch6.addConstraint(Sketcher.Constraint("Coincident", 6, 2, 7, 1))
sketch6.addConstraint(Sketcher.Constraint("Coincident", 7, 2, 8, 1))
sketch6.addConstraint(Sketcher.Constraint("Coincident", 8, 2, 6, 1))
sketch6.addConstraint(Sketcher.Constraint("Coincident", 9, 2, 10, 1))
sketch6.addConstraint(Sketcher.Constraint("Coincident", 10, 2, 11, 1))
sketch6.addConstraint(Sketcher.Constraint("Coincident", 11, 2, 9, 1))
sketch6.addConstraint(Sketcher.Constraint("Horizontal", 1))
sketch6.addConstraint(Sketcher.Constraint("Vertical", 3))
sketch6.addConstraint(Sketcher.Constraint("Horizontal", 8))
sketch6.addConstraint(Sketcher.Constraint("Vertical", 10))
sketch6.addConstraint(Sketcher.Constraint("Parallel", 2, 5))
sketch6.addConstraint(Sketcher.Constraint("Parallel", 4, 7))
sketch6.addConstraint(Sketcher.Constraint("Parallel", 6, 9))
sketch6.addConstraint(Sketcher.Constraint("Parallel", 0, 11))
sketch6.addConstraint(Sketcher.Constraint("Vertical", 5, 2, 8, 2))
sketch6.addConstraint(Sketcher.Constraint("Vertical", 1, 2, 9, 2))
sketch6.addConstraint(Sketcher.Constraint("DistanceX", 1, 2, -1, 1, 7.0))
sketch6.addConstraint(Sketcher.Constraint("DistanceX", 4, 2, 3, 2, 5.0))
sketch6.addConstraint(Sketcher.Constraint("DistanceY", 4, 2, 0, 2, 14.0))
sketch6.addConstraint(Sketcher.Constraint("DistanceY", 7, 2, 4, 2, 14.0))
sketch6.addConstraint(Sketcher.Constraint("DistanceY", -1, 1, 0, 2, 56.5))
sketch6.addConstraint(Sketcher.Constraint("DistanceX", -1, 1, 3, 2, 6.5))
sketch6.addConstraint(Sketcher.Constraint("Distance", 9, 10.350498))
sketch6.addConstraint(Sketcher.Constraint("DistanceY", 10, 2, 10, 1, 17.850628))
sketch6.addConstraint(Sketcher.Constraint("DistanceY", -1, 1, 6, 2, 39.779498))
sketch6.addConstraint(Sketcher.Constraint("Distance", 2, 13.207181))
sketch6.addConstraint(Sketcher.Constraint("Distance", 4, 9.655211))
sketch6.addConstraint(Sketcher.Constraint("Distance", 11, 10.36422))
sketch6.addConstraint(Sketcher.Constraint("DistanceX", 1, 2, 1, 1, 13.495022))
sketch6.addConstraint(Sketcher.Constraint("DistanceY", -1, 1, 9, 2, 51.409091))
pocket3 = doc.addObject("PartDesign::Pocket", "Pocket002")
body.addObject(pocket3)
pocket3.Profile = sketch6
pocket3.Type = "ThroughAll"

sketch7 = doc.addObject("Sketcher::SketchObject", "Sketch006")
body.addObject(sketch7)
sketch7.AttachmentSupport = (doc.XY_Plane, [""])
sketch7.MapMode = "FlatFace"
sketch7.AttachmentOffset = App.Placement(App.Vector(0, 0, 5), App.Rotation())
sketch7.addGeometry(Part.LineSegment(App.Vector(-7, 11.5, 0), App.Vector(-7, -72.5, 0)), False)
sketch7.addGeometry(Part.LineSegment(App.Vector(-7, -72.5, 0), App.Vector(7, -72.5, 0)), False)
sketch7.addGeometry(Part.LineSegment(App.Vector(7, -72.5, 0), App.Vector(7, 11.5, 0)), False)
sketch7.addGeometry(Part.LineSegment(App.Vector(7, 11.5, 0), App.Vector(-7, 11.5, 0)), False)
sketch7.addGeometry(Part.LineSegment(App.Vector(-7, 56.5, 0), App.Vector(-7, 28.5, 0)), False)
sketch7.addGeometry(Part.LineSegment(App.Vector(-7, 28.5, 0), App.Vector(6.5, 28.5, 0)), False)
sketch7.addGeometry(Part.LineSegment(App.Vector(6.5, 28.5, 0), App.Vector(6.5, 56.5, 0)), False)
sketch7.addGeometry(Part.LineSegment(App.Vector(6.5, 56.5, 0), App.Vector(-7, 56.5, 0)), False)
sketch7.addConstraint(Sketcher.Constraint("Coincident", 0, 2, 1, 1))
sketch7.addConstraint(Sketcher.Constraint("Coincident", 1, 2, 2, 1))
sketch7.addConstraint(Sketcher.Constraint("Coincident", 2, 2, 3, 1))
sketch7.addConstraint(Sketcher.Constraint("Coincident", 3, 2, 0, 1))
sketch7.addConstraint(Sketcher.Constraint("Coincident", 4, 2, 5, 1))
sketch7.addConstraint(Sketcher.Constraint("Coincident", 5, 2, 6, 1))
sketch7.addConstraint(Sketcher.Constraint("Coincident", 6, 2, 7, 1))
sketch7.addConstraint(Sketcher.Constraint("Coincident", 7, 2, 4, 1))
sketch7.addConstraint(Sketcher.Constraint("Vertical", 0))
sketch7.addConstraint(Sketcher.Constraint("Horizontal", 1))
sketch7.addConstraint(Sketcher.Constraint("Vertical", 2))
sketch7.addConstraint(Sketcher.Constraint("Horizontal", 3))
sketch7.addConstraint(Sketcher.Constraint("Vertical", 4))
sketch7.addConstraint(Sketcher.Constraint("Horizontal", 5))
sketch7.addConstraint(Sketcher.Constraint("Vertical", 6))
sketch7.addConstraint(Sketcher.Constraint("Horizontal", 7))
sketch7.addConstraint(Sketcher.Constraint("Vertical", 3, 2, 4, 2))
sketch7.addConstraint(Sketcher.Constraint("DistanceX", 1, 1, 1, 2, 14.0))
sketch7.addConstraint(Sketcher.Constraint("DistanceY", 0, 2, 0, 1, 84.0))
sketch7.addConstraint(Sketcher.Constraint("DistanceY", 4, 2, 4, 1, 28.0))
sketch7.addConstraint(Sketcher.Constraint("DistanceX", 5, 1, 5, 2, 13.5))
sketch7.addConstraint(Sketcher.Constraint("DistanceX", 0, 2, -1, 1, 7.0))
sketch7.addConstraint(Sketcher.Constraint("DistanceY", 3, 2, 4, 2, 17.0))
sketch7.addConstraint(Sketcher.Constraint("DistanceY", 0, 2, -1, 1, 72.5))
pocket4 = doc.addObject("PartDesign::Pocket", "Pocket003")
body.addObject(pocket4)
pocket4.Profile = sketch7
pocket4.Length = 2

doc.recompute()
